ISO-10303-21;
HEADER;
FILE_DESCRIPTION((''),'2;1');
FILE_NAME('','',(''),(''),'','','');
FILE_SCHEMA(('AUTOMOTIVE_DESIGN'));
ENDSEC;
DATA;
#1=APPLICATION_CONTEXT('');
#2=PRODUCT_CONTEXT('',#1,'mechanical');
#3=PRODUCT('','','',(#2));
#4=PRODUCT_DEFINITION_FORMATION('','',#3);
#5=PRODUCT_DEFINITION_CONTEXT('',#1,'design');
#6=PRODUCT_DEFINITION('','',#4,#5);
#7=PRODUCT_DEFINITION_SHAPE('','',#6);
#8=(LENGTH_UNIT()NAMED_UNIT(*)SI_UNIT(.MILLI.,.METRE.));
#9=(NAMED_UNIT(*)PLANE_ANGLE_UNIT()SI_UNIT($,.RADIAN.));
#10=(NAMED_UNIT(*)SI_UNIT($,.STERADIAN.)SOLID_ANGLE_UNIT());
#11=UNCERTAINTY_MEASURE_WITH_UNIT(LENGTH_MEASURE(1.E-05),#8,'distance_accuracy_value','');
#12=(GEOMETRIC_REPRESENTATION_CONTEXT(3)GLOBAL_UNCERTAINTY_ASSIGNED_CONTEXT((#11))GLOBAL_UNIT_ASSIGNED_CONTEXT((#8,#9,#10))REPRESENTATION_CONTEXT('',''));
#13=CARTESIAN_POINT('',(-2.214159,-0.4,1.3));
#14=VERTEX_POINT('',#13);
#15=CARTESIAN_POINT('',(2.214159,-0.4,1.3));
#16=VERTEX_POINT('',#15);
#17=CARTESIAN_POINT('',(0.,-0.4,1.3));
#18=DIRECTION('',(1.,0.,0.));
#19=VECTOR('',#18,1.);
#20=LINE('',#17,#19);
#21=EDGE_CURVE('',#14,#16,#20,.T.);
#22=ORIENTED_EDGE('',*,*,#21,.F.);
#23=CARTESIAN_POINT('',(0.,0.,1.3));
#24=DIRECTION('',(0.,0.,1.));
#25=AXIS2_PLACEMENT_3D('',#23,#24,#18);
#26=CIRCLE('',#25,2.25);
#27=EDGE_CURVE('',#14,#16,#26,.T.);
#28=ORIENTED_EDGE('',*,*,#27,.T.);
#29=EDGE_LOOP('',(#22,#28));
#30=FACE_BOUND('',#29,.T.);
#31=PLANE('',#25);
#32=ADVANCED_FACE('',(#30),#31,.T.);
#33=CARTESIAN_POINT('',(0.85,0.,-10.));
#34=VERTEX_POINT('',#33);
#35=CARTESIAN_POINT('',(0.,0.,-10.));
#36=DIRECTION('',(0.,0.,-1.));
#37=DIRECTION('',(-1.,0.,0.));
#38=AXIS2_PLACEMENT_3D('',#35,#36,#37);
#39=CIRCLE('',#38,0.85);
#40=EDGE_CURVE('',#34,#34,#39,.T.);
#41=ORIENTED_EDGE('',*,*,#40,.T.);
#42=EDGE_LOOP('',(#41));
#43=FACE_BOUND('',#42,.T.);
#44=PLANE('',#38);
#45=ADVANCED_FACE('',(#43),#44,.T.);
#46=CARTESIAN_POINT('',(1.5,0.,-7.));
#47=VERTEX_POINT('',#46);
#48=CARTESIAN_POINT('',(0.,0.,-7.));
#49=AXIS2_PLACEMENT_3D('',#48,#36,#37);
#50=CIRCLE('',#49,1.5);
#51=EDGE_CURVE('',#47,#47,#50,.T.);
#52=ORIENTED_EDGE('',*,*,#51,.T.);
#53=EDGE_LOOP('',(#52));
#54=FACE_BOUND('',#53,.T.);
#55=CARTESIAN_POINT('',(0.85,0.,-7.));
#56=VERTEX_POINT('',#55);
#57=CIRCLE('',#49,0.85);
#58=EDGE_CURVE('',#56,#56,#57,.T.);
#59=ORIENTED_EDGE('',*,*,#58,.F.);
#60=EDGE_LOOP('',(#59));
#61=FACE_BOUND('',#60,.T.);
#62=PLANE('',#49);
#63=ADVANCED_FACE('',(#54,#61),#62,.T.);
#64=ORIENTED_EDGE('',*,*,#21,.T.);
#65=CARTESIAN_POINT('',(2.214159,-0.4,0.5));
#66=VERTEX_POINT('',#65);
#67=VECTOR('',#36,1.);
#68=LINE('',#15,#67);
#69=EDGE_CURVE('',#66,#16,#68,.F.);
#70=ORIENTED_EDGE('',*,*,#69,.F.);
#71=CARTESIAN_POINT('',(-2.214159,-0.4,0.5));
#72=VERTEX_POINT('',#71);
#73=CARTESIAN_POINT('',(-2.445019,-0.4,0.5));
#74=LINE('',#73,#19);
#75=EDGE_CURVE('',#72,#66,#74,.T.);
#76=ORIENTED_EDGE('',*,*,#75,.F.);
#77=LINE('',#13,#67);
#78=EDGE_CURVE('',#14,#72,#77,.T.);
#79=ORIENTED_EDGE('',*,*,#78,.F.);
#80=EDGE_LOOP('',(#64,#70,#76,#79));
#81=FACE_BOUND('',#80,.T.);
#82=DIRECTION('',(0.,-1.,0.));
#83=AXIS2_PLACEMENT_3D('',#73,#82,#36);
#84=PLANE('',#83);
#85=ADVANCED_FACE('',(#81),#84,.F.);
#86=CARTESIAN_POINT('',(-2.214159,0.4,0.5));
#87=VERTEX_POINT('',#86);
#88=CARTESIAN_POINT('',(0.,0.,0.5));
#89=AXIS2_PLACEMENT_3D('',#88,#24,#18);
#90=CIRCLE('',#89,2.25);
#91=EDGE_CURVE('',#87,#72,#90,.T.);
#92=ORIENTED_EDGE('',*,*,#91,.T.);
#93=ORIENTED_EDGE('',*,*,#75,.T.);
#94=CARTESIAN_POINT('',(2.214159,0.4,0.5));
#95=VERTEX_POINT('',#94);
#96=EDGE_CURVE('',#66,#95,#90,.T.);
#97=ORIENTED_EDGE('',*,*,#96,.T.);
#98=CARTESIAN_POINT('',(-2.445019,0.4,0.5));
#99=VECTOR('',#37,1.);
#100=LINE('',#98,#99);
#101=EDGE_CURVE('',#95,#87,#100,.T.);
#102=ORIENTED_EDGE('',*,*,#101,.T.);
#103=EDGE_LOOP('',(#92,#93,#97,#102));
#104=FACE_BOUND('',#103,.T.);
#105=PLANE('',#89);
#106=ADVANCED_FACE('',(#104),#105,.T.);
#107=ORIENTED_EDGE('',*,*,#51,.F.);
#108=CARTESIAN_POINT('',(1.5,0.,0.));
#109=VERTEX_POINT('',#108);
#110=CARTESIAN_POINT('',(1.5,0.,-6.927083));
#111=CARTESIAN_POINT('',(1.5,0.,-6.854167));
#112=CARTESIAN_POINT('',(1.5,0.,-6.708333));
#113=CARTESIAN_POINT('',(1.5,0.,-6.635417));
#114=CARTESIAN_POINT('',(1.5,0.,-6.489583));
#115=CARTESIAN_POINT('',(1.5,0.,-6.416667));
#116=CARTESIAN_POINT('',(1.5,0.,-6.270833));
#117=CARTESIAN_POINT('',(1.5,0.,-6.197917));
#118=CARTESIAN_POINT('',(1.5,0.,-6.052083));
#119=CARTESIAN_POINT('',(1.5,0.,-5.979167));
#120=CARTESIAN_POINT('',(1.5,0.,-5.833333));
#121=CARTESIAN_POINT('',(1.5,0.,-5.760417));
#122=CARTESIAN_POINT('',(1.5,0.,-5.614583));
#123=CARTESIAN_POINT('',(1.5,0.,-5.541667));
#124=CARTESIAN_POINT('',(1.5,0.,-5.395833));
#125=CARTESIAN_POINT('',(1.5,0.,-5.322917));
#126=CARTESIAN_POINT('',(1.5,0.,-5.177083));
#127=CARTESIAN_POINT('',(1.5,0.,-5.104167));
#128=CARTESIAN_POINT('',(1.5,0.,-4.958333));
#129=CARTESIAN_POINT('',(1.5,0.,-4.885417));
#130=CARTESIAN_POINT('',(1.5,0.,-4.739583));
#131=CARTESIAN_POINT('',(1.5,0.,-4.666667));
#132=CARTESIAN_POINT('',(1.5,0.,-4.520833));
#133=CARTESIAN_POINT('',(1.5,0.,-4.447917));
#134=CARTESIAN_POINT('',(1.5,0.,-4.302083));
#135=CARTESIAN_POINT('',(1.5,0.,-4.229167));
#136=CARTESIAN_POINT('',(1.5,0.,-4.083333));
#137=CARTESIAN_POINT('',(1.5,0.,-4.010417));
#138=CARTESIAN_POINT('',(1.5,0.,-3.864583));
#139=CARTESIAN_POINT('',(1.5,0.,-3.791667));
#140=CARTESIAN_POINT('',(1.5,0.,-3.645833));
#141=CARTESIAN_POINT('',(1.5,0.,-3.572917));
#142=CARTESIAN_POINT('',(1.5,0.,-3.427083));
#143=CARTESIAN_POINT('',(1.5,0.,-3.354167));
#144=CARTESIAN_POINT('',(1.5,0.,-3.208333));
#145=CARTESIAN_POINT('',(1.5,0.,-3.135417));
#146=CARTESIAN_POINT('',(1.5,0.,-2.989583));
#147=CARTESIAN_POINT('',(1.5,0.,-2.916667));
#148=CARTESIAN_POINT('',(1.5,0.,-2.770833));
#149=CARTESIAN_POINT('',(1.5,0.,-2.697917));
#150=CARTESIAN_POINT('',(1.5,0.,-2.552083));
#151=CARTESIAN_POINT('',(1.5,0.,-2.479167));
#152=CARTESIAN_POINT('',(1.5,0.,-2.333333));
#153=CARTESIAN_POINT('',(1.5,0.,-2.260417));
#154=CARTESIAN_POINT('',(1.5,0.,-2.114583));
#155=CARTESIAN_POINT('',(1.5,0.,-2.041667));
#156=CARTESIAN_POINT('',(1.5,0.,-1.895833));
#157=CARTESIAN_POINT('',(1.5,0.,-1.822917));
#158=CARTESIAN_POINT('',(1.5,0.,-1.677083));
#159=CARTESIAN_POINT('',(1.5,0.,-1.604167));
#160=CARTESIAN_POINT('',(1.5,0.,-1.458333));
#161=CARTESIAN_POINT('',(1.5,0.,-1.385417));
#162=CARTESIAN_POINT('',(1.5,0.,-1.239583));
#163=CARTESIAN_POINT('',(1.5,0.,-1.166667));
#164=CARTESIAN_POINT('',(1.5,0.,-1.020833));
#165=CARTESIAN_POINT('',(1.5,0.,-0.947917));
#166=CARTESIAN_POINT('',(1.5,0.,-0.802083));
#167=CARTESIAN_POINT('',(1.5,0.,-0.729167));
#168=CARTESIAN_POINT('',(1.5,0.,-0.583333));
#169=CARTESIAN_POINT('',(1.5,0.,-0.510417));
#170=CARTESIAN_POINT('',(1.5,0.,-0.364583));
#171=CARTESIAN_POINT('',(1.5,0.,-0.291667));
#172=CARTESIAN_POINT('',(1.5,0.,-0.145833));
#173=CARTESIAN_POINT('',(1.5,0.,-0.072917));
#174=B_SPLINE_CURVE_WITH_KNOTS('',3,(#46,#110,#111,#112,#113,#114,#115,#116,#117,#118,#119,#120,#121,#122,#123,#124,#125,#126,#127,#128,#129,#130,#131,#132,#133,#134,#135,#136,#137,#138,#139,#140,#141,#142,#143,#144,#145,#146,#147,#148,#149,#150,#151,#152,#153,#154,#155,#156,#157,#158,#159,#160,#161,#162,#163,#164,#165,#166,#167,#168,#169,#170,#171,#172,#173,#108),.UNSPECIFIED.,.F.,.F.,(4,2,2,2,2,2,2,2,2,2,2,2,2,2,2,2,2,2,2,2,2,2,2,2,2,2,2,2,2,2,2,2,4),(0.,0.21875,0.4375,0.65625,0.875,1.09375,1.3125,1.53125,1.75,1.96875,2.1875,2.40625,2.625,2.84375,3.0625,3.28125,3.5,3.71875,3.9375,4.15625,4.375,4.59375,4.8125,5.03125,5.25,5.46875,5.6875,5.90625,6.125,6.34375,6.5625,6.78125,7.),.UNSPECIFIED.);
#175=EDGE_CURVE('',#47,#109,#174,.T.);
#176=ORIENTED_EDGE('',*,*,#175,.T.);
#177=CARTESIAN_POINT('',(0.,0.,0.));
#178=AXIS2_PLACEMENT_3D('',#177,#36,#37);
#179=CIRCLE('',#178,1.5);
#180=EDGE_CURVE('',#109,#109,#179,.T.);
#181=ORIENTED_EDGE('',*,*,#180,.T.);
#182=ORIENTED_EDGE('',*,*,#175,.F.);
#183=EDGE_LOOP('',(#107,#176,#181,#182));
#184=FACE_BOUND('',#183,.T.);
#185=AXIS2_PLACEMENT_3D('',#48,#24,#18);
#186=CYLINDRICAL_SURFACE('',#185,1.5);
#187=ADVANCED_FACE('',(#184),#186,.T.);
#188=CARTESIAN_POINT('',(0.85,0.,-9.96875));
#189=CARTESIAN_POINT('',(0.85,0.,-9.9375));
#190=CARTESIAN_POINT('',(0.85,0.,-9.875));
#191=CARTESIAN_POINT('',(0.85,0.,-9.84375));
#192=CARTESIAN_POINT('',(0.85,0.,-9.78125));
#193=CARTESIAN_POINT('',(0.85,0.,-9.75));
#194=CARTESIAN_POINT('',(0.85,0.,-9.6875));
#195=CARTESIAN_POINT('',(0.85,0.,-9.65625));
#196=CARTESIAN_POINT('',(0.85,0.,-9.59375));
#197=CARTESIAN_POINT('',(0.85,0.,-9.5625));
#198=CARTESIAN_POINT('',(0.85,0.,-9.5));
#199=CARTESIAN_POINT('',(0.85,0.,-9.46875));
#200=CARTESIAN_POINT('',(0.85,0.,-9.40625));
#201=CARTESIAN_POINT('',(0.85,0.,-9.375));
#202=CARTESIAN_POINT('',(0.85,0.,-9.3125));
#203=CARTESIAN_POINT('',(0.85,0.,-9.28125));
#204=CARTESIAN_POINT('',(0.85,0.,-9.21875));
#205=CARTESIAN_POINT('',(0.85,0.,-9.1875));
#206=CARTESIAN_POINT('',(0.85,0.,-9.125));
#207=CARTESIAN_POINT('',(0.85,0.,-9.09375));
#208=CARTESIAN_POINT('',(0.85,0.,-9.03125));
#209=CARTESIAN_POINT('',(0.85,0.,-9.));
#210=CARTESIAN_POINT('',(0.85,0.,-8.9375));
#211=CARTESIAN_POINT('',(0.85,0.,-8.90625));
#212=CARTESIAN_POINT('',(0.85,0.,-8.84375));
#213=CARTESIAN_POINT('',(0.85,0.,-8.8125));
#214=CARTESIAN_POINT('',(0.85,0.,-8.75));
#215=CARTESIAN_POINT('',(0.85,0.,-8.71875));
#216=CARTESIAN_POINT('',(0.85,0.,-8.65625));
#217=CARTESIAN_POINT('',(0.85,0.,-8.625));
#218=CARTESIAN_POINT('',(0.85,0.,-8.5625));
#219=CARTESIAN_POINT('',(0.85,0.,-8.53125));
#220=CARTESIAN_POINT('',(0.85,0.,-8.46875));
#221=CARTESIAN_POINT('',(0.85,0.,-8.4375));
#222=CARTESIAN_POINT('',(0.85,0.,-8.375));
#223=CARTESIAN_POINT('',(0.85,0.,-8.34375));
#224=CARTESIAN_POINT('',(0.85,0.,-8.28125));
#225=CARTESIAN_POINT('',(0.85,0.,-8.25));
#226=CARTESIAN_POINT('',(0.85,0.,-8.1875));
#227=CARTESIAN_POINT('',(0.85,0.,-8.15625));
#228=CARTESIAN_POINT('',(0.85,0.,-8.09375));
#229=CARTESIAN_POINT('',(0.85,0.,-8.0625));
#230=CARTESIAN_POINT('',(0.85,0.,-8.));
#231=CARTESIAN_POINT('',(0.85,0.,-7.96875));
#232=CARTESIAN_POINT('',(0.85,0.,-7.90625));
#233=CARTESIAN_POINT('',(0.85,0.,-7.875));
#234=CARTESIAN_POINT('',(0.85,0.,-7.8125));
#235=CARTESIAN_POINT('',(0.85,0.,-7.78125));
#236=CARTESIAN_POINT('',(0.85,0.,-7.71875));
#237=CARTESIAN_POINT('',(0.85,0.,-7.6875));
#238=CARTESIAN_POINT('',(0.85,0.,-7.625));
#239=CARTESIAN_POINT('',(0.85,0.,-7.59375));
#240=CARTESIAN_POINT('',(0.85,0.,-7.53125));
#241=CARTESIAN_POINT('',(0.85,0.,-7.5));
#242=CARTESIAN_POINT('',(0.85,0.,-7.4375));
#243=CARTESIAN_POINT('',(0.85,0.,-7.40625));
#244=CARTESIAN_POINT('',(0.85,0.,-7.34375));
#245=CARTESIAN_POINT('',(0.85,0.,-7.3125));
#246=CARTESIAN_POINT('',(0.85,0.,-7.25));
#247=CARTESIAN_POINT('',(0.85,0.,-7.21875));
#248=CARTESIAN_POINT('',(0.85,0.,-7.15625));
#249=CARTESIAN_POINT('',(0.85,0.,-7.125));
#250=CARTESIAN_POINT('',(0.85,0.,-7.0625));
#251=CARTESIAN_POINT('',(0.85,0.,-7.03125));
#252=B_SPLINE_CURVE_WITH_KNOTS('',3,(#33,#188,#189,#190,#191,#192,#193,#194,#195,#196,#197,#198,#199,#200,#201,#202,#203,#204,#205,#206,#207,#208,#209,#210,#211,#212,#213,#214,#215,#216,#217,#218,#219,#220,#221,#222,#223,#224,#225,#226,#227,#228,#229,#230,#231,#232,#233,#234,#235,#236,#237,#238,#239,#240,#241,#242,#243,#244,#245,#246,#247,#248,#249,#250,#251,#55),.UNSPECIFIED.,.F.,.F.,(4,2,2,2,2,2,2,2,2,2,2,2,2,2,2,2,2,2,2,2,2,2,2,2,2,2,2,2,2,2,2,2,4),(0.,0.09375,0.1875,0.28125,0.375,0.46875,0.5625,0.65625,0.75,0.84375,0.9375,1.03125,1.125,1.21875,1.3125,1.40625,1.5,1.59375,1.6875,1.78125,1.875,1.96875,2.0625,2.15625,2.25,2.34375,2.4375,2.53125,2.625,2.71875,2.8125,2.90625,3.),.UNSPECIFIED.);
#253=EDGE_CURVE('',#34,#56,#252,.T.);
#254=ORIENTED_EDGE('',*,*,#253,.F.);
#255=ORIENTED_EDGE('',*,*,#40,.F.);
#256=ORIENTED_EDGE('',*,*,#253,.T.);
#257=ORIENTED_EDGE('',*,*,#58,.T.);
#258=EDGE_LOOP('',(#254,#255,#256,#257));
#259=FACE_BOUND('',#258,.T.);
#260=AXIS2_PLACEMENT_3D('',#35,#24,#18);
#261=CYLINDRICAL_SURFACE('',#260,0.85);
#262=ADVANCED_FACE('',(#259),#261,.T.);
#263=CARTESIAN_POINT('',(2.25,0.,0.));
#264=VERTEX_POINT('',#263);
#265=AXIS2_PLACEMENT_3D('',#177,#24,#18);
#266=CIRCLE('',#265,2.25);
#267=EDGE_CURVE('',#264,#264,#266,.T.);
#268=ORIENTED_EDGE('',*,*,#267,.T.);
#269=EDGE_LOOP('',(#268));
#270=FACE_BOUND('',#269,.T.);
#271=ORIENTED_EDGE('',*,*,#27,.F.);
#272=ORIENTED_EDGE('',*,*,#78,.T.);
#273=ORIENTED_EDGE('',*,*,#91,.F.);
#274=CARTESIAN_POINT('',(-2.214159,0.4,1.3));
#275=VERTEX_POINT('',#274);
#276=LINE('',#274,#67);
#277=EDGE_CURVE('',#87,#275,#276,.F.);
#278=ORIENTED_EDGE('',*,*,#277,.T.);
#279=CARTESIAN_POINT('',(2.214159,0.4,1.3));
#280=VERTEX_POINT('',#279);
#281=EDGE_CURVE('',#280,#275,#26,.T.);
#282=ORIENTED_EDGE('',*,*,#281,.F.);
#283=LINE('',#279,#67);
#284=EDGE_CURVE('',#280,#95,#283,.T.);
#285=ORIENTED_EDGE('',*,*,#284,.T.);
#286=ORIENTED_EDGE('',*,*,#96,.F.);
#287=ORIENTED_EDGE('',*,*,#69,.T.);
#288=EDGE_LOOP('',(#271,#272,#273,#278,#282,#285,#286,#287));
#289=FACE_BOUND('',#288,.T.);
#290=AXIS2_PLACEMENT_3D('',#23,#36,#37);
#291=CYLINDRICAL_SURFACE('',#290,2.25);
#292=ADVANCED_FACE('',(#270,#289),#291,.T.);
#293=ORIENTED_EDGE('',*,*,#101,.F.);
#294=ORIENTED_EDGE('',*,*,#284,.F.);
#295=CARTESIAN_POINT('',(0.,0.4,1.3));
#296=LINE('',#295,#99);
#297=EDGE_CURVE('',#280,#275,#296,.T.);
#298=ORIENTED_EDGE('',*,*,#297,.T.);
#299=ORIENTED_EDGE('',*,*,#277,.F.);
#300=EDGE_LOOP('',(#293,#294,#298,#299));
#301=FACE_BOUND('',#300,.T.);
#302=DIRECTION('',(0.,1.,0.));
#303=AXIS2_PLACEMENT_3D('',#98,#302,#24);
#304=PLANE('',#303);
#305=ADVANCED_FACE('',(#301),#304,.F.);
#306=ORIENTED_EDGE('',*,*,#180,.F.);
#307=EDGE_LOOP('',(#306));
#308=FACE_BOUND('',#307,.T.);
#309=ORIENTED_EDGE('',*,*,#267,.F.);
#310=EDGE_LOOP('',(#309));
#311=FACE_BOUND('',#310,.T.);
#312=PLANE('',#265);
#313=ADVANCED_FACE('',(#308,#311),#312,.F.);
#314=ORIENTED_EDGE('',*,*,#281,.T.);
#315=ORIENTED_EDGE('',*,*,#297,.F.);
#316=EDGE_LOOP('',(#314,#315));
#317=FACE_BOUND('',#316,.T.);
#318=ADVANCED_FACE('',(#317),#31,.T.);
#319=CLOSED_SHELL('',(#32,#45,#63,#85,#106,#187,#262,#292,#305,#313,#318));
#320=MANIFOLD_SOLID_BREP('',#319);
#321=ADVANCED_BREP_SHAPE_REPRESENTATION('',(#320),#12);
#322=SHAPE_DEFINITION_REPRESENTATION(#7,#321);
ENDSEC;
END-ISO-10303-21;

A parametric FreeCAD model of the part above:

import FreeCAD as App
import Part
import Sketcher
Q = App.Units.Quantity

doc = App.newDocument("Part")
params = doc.addObject("Spreadsheet::Sheet", "Params")
for row, (alias, value) in enumerate([
    ("sketch1_diameter", "4.5 mm"),
    ("pad1_length", "1.3 mm"),
    ("sketch2_height", "0.8 mm"),
    ("pocket1_length", "0.8 mm"),
    ("sketch3_diameter", "3 mm"),
    ("pad2_length", "7 mm"),
    ("sketch4_diameter", "1.7 mm"),
    ("pad3_length", "3 mm"),
], start=1):
    params.set(f"A{row}", alias)
    params.set(f"B{row}", "=" + value)
    params.setAlias(f"B{row}", alias)

body = doc.addObject("PartDesign::Body", "Body")

# Sketch on XY plane
sketch1 = doc.addObject("Sketcher::SketchObject", "Sketch")
body.addObject(sketch1)
sketch1.AttachmentSupport = (doc.XY_Plane, [""])
sketch1.MapMode = "FlatFace"
sketch1.addGeometry(Part.Circle(App.Vector(0, 0, 0), App.Vector(0, 0, 1), 2.2), False)
sketch1.addConstraint([
    Sketcher.Constraint("Coincident", 0, 3, -1, 1),
    Sketcher.Constraint("Diameter", 0, Q("4.5 mm")),
])
sketch1.setExpression("Constraints[1]", "Params.sketch1_diameter")
pad1 = doc.addObject("PartDesign::Pad", "Pad")
body.addObject(pad1)
pad1.Profile = sketch1
pad1.setExpression("Length", "Params.pad1_length")

# Sketch on XY plane
sketch2 = doc.addObject("Sketcher::SketchObject", "Sketch001")
body.addObject(sketch2)
sketch2.AttachmentSupport = (doc.XY_Plane, [""])
sketch2.MapMode = "FlatFace"
sketch2.AttachmentOffset = App.Placement(App.Vector(0, 0, 1.3), App.Rotation())
sketch2.addGeometry([
    Part.LineSegment(App.Vector(-2.4, 0.4, 0), App.Vector(-2.4, -0.4, 0)),
    Part.LineSegment(App.Vector(-2.4, -0.4, 0), App.Vector(2.4, -0.4, 0)),
    Part.LineSegment(App.Vector(2.4, -0.4, 0), App.Vector(2.4, 0.4, 0)),
    Part.LineSegment(App.Vector(2.4, 0.4, 0), App.Vector(-2.4, 0.4, 0)),
], False)
sketch2.addConstraint([
    Sketcher.Constraint("Coincident", 0, 2, 1, 1),
    Sketcher.Constraint("Coincident", 1, 2, 2, 1),
    Sketcher.Constraint("Coincident", 2, 2, 3, 1),
    Sketcher.Constraint("Coincident", 3, 2, 0, 1),
    Sketcher.Constraint("Vertical", 0),
    Sketcher.Constraint("Horizontal", 1),
    Sketcher.Constraint("Vertical", 2),
    Sketcher.Constraint("Horizontal", 3),
    Sketcher.Constraint("Symmetric", 0, 2, 2, 2, -1, 1),
    Sketcher.Constraint("DistanceY", 0, 2, 0, 1, Q("0.8 mm")),
    Sketcher.Constraint("DistanceX", 1, 1, 1, 2, Q("4.890037 mm")),
])
sketch2.setExpression("Constraints[9]", "Params.sketch2_height")
pocket1 = doc.addObject("PartDesign::Pocket", "Pocket")
body.addObject(pocket1)
pocket1.Profile = sketch2
pocket1.setExpression("Length", "Params.pocket1_length")

# Sketch on XY plane
sketch3 = doc.addObject("Sketcher::SketchObject", "Sketch002")
body.addObject(sketch3)
sketch3.AttachmentSupport = (doc.XY_Plane, [""])
sketch3.MapMode = "FlatFace"
sketch3.addGeometry(Part.Circle(App.Vector(0, 0, 0), App.Vector(0, 0, 1), 1.5), False)
sketch3.addConstraint([
    Sketcher.Constraint("Coincident", 0, 3, -1, 1),
    Sketcher.Constraint("Diameter", 0, Q("3 mm")),
])
sketch3.setExpression("Constraints[1]", "Params.sketch3_diameter")
pad2 = doc.addObject("PartDesign::Pad", "Pad001")
body.addObject(pad2)
pad2.Profile = sketch3
pad2.setExpression("Length", "Params.pad2_length")
pad2.Reversed = True

# Sketch on XY plane
sketch4 = doc.addObject("Sketcher::SketchObject", "Sketch003")
body.addObject(sketch4)
sketch4.AttachmentSupport = (doc.XY_Plane, [""])
sketch4.MapMode = "FlatFace"
sketch4.AttachmentOffset = App.Placement(App.Vector(0, 0, -7), App.Rotation())
sketch4.addGeometry(Part.Circle(App.Vector(0, 0, 0), App.Vector(0, 0, 1), 0.8), False)
sketch4.addConstraint([
    Sketcher.Constraint("Coincident", 0, 3, -1, 1),
    Sketcher.Constraint("Diameter", 0, Q("1.7 mm")),
])
sketch4.setExpression("Constraints[1]", "Params.sketch4_diameter")
pad3 = doc.addObject("PartDesign::Pad", "Pad002")
body.addObject(pad3)
pad3.Profile = sketch4
pad3.setExpression("Length", "Params.pad3_length")
pad3.Reversed = True

doc.recompute()
